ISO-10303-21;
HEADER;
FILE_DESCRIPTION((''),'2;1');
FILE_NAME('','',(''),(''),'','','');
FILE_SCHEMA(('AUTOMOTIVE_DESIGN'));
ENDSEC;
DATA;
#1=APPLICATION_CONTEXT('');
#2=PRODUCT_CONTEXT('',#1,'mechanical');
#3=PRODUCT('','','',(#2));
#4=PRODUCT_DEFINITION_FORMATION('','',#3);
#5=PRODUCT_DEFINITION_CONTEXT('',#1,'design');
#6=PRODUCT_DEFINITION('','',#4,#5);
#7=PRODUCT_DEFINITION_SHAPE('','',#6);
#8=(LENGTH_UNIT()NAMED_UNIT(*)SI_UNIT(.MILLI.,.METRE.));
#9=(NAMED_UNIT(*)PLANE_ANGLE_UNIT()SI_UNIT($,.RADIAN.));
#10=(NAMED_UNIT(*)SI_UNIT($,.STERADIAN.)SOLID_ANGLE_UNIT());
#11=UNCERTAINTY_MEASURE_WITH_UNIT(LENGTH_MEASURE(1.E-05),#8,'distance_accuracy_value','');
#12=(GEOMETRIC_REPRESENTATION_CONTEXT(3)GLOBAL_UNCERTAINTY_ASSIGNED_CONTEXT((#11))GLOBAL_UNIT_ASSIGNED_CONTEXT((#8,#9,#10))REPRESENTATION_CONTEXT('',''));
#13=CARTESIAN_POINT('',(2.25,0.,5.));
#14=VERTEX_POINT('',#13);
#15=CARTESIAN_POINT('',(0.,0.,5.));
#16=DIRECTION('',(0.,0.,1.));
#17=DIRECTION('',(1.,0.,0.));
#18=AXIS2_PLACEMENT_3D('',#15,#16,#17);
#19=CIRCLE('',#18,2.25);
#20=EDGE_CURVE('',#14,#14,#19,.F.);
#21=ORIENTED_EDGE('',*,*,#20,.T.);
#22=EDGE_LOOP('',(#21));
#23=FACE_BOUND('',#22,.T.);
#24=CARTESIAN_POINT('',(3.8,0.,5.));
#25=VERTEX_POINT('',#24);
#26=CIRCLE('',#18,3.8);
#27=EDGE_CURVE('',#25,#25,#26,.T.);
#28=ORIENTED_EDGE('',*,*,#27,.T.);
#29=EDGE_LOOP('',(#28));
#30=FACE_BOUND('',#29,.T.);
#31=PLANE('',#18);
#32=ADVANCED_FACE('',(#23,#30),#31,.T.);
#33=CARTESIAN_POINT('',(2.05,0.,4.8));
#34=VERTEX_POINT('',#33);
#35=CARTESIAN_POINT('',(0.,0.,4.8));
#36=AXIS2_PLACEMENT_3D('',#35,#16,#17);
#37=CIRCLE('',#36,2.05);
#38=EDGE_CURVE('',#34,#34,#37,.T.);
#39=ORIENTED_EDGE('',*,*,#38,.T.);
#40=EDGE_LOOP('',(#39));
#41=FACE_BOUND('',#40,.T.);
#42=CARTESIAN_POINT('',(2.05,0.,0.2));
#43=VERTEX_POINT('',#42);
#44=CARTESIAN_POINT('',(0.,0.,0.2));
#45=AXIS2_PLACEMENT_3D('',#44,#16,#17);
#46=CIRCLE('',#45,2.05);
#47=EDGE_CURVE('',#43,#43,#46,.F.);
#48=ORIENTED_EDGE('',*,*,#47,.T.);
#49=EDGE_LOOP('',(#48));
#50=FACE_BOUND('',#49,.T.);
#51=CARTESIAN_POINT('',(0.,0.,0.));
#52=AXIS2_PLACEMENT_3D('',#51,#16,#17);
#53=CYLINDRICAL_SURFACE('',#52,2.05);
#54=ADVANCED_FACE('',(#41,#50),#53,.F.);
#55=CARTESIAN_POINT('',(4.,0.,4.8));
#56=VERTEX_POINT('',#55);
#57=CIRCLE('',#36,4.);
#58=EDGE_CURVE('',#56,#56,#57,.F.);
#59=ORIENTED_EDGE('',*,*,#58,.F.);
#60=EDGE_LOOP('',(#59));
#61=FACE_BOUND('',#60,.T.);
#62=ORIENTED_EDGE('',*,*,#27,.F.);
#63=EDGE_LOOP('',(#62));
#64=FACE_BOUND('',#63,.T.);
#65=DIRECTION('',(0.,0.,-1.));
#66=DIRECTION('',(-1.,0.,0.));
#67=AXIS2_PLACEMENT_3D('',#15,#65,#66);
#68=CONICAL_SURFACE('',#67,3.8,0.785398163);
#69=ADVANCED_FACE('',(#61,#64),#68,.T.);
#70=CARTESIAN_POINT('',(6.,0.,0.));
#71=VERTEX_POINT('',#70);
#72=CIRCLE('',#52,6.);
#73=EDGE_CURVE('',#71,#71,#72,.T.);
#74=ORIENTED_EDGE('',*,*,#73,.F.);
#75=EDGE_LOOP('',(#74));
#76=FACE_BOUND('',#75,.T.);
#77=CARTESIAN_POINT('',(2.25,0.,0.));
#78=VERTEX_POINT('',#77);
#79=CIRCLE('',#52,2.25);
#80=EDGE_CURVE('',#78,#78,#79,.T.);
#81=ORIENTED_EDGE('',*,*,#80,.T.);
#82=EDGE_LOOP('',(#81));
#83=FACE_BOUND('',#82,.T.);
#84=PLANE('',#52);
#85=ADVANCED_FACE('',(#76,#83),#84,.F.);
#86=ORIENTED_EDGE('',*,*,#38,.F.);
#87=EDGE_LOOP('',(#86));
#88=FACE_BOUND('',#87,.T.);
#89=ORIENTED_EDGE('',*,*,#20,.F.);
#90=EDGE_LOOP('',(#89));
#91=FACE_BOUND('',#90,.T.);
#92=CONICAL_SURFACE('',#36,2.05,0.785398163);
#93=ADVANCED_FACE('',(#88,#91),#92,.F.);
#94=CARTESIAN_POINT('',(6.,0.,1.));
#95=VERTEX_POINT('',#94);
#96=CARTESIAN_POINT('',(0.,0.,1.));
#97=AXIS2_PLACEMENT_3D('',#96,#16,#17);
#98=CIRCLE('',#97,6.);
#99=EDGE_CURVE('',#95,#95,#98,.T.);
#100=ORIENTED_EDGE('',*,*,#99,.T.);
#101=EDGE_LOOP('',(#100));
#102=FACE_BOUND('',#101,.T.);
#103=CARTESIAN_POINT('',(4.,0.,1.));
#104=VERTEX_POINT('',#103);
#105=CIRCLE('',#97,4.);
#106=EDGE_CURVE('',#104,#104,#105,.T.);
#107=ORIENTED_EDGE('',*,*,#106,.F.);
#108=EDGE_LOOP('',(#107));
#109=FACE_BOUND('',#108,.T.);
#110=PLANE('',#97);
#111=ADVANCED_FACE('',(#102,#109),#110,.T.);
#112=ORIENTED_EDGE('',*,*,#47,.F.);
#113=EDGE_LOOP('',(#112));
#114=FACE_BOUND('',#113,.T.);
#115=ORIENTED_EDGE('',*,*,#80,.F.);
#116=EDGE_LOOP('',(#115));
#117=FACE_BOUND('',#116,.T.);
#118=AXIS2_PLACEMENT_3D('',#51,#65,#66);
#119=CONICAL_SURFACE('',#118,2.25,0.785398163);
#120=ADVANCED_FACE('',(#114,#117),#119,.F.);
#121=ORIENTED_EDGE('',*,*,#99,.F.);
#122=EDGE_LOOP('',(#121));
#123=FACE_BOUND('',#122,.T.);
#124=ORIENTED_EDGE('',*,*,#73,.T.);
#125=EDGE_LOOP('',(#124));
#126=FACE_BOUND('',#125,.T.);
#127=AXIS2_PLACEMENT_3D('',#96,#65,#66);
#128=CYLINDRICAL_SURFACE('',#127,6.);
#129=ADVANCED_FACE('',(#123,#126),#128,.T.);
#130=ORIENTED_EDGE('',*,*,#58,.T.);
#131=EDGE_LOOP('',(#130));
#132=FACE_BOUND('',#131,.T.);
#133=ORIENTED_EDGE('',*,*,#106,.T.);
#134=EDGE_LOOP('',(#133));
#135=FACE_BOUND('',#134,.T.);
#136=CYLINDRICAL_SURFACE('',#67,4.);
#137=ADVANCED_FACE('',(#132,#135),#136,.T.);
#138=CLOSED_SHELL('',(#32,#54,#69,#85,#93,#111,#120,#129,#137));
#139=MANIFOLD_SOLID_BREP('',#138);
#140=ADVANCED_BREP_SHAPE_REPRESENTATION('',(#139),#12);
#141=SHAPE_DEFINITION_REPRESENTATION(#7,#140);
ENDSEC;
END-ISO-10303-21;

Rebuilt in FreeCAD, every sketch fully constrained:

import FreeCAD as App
import Part
import Sketcher

V = App.Vector


def edges_at(feature, points):
    """Names of the edges that pass closest to the given points."""
    edges = feature.Shape.Edges
    near = lambda p: min(range(len(edges)), key=lambda i: edges[i].distToShape(Part.Vertex(*p))[0])
    return sorted({f"Edge{near(p) + 1}" for p in points})

doc = App.newDocument("Part")
body = doc.addObject("PartDesign::Body", "Body")

# Sketch on XY plane
sketch1 = doc.addObject("Sketcher::SketchObject", "Sketch")
body.addObject(sketch1)
sketch1.AttachmentSupport = (doc.XY_Plane, [""])
sketch1.MapMode = "FlatFace"
sketch1.addGeometry(Part.Circle(V(0, 0, 0), V(0, 0, 1), 6), False)
sketch1.addConstraint([
    Sketcher.Constraint("Coincident", 0, 3, -1, 1),
    Sketcher.Constraint("Diameter", 0, 12.0),
])
pad1 = doc.addObject("PartDesign::Pad", "Pad")
body.addObject(pad1)
pad1.Profile = sketch1
pad1.Length = 1

# Sketch on XY plane
sketch2 = doc.addObject("Sketcher::SketchObject", "Sketch001")
body.addObject(sketch2)
sketch2.AttachmentSupport = (doc.XY_Plane, [""])
sketch2.MapMode = "FlatFace"
sketch2.AttachmentOffset = App.Placement(V(0, 0, 1), App.Rotation())
sketch2.addGeometry(Part.Circle(V(0, 0, 0), V(0, 0, 1), 4), False)
sketch2.addConstraint([
    Sketcher.Constraint("Coincident", 0, 3, -1, 1),
    Sketcher.Constraint("Diameter", 0, 8.0),
])
pad2 = doc.addObject("PartDesign::Pad", "Pad001")
body.addObject(pad2)
pad2.Profile = sketch2
pad2.Length = 4

# Sketch on XY plane
sketch3 = doc.addObject("Sketcher::SketchObject", "Sketch002")
body.addObject(sketch3)
sketch3.AttachmentSupport = (doc.XY_Plane, [""])
sketch3.MapMode = "FlatFace"
sketch3.AttachmentOffset = App.Placement(V(0, 0, 5), App.Rotation())
sketch3.addGeometry(Part.Circle(V(0, 0, 0), V(0, 0, 1), 2), False)
sketch3.addConstraint([
    Sketcher.Constraint("Coincident", 0, 3, -1, 1),
    Sketcher.Constraint("Diameter", 0, 4.1),
])
pocket1 = doc.addObject("PartDesign::Pocket", "Pocket")
body.addObject(pocket1)
pocket1.Profile = sketch3
pocket1.Type = "ThroughAll"
doc.recompute()

chamfer = doc.addObject("PartDesign::Chamfer", "Chamfer")
body.addObject(chamfer)
chamfer.Base = (pocket1, edges_at(pocket1, [(-2.05, 0, 0), (-2.05, 0, 5), (-4, 0, 5)]))
chamfer.Size = 0.2

doc.recompute()
